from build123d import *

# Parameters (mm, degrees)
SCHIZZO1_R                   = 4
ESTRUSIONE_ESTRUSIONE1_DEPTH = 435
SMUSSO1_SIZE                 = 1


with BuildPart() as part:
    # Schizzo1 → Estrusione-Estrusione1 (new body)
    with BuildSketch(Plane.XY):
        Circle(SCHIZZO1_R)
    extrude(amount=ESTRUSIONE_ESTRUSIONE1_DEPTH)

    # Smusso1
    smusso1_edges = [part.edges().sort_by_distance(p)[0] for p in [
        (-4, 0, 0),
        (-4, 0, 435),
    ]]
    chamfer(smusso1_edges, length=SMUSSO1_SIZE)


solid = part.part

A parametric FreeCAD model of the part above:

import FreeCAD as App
import Part
import Sketcher
from FreeCAD import Vector


def edges_at(feature, points):
    """Names of the edges that pass closest to the given points."""
    edges = feature.Shape.Edges
    near = lambda p: min(range(len(edges)), key=lambda i: edges[i].distToShape(Part.Vertex(*p))[0])
    return sorted({f"Edge{near(p) + 1}" for p in points})

doc = App.newDocument("Part")
body = doc.addObject("PartDesign::Body", "Body")

sketch1 = body.newObject("Sketcher::SketchObject", "Sketch")
sketch1.AttachmentSupport = (doc.getObject("XY_Plane"), [""])
sketch1.MapMode = "FlatFace"
sketch1.addGeometry(Part.Circle(Vector(0, 0, 0), Vector(0, 0, 1), 4), False)
sketch1.addConstraint([
    Sketcher.Constraint("Coincident", 0, 3, -1, 1),
    Sketcher.Constraint("Diameter", 0, 8.0),
])
pad1 = body.newObject("PartDesign::Pad", "Pad")
pad1.Profile = sketch1
pad1.Length = 435
doc.recompute()

chamfer = body.newObject("PartDesign::Chamfer", "Chamfer")
chamfer.Base = (pad1, edges_at(pad1, [(-4, 0, 0), (-4, 0, 435)]))
chamfer.Size = 1

doc.recompute()
